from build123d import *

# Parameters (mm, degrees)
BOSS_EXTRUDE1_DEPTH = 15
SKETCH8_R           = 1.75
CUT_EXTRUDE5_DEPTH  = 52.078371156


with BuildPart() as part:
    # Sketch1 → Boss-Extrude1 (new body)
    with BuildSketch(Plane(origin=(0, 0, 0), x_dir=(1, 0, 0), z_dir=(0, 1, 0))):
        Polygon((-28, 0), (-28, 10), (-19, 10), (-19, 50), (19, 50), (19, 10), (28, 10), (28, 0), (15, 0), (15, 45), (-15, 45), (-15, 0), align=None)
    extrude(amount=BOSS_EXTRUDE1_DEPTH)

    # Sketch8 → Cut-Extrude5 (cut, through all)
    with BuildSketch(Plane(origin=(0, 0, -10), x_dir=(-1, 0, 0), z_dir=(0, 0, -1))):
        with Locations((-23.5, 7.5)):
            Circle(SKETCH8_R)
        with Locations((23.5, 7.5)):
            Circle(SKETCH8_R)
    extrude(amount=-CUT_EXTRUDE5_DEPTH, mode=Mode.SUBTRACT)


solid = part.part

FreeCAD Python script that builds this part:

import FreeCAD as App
import Part
import Sketcher
Q = App.Units.Quantity


def add_polygon(sketch, points):
    """Adds a closed chain of lines whose ends are joined by coincident constraints."""
    first, n = sketch.GeometryCount, len(points)
    for a, b in zip(points, points[1:] + points[:1]):
        sketch.addGeometry(Part.LineSegment(App.Vector(*a, 0), App.Vector(*b, 0)), False)
    for i in range(n):
        sketch.addConstraint(Sketcher.Constraint("Coincident", first + i, 2, first + (i + 1) % n, 1))

doc = App.newDocument("Part")
body = doc.addObject("PartDesign::Body", "Body")

# Sketch on XZ plane
sketch1 = doc.addObject("Sketcher::SketchObject", "Sketch")
body.addObject(sketch1)
sketch1.AttachmentSupport = (doc.XZ_Plane, [""])
sketch1.MapMode = "FlatFace"
add_polygon(sketch1, [(-28, -10), (-28, 0), (-15, 0), (-15, -45), (15, -45), (15, 0), (28, 0), (28, -10), (19, -10), (19, -50), (-19, -50), (-19, -10)])  # lines 0-11
sketch1.addConstraint(Sketcher.Constraint("Vertical", 0))
sketch1.addConstraint(Sketcher.Constraint("Horizontal", 1))
sketch1.addConstraint(Sketcher.Constraint("Vertical", 2))
sketch1.addConstraint(Sketcher.Constraint("Horizontal", 3))
sketch1.addConstraint(Sketcher.Constraint("Vertical", 4))
sketch1.addConstraint(Sketcher.Constraint("Horizontal", 5))
sketch1.addConstraint(Sketcher.Constraint("Vertical", 6))
sketch1.addConstraint(Sketcher.Constraint("Horizontal", 7))
sketch1.addConstraint(Sketcher.Constraint("Vertical", 8))
sketch1.addConstraint(Sketcher.Constraint("Horizontal", 9))
sketch1.addConstraint(Sketcher.Constraint("Vertical", 10))
sketch1.addConstraint(Sketcher.Constraint("Horizontal", 11))
sketch1.addConstraint(Sketcher.Constraint("Symmetric", 1, 2, 4, 2, -1, 1))
sketch1.addConstraint(Sketcher.Constraint("Symmetric", 0, 2, 5, 2, -2))
sketch1.addConstraint(Sketcher.Constraint("Symmetric", 7, 2, 10, 2, -2))
sketch1.addConstraint(Sketcher.Constraint("DistanceX", 1, 1, 1, 2, Q("13 mm")))
sketch1.addConstraint(Sketcher.Constraint("DistanceX", 3, 1, 3, 2, Q("30 mm")))
sketch1.addConstraint(Sketcher.Constraint("DistanceX", 7, 2, 7, 1, Q("9 mm")))
sketch1.addConstraint(Sketcher.Constraint("DistanceY", 0, 1, 0, 2, Q("10 mm")))
sketch1.addConstraint(Sketcher.Constraint("DistanceY", 2, 2, 2, 1, Q("45 mm")))
sketch1.addConstraint(Sketcher.Constraint("DistanceY", 8, 2, 8, 1, Q("40 mm")))
pad1 = doc.addObject("PartDesign::Pad", "Pad")
body.addObject(pad1)
pad1.Profile = sketch1
pad1.Length = 15
pad1.Reversed = True

# Sketch on XY plane
sketch2 = doc.addObject("Sketcher::SketchObject", "Sketch001")
body.addObject(sketch2)
sketch2.AttachmentSupport = (doc.XY_Plane, [""])
sketch2.MapMode = "FlatFace"
sketch2.AttachmentOffset = App.Placement(App.Vector(0, 0, -10), App.Rotation())
sketch2.addGeometry(Part.Circle(App.Vector(23.5, 7.5, 0), App.Vector(0, 0, 1), 1.75), False)
sketch2.addGeometry(Part.Circle(App.Vector(-23.5, 7.5, 0), App.Vector(0, 0, 1), 1.75), False)
sketch2.addConstraint(Sketcher.Constraint("Equal", 0, 1))
sketch2.addConstraint(Sketcher.Constraint("Symmetric", 0, 3, 1, 3, -2))
sketch2.addConstraint(Sketcher.Constraint("Diameter", 0, Q("3.5 mm")))
sketch2.addConstraint(Sketcher.Constraint("DistanceX", 1, 3, 0, 3, Q("47 mm")))
sketch2.addConstraint(Sketcher.Constraint("DistanceY", -1, 1, 0, 3, Q("7.5 mm")))
pocket1 = doc.addObject("PartDesign::Pocket", "Pocket")
body.addObject(pocket1)
pocket1.Profile = sketch2
pocket1.Type = "ThroughAll"
pocket1.Reversed = True

doc.recompute()
